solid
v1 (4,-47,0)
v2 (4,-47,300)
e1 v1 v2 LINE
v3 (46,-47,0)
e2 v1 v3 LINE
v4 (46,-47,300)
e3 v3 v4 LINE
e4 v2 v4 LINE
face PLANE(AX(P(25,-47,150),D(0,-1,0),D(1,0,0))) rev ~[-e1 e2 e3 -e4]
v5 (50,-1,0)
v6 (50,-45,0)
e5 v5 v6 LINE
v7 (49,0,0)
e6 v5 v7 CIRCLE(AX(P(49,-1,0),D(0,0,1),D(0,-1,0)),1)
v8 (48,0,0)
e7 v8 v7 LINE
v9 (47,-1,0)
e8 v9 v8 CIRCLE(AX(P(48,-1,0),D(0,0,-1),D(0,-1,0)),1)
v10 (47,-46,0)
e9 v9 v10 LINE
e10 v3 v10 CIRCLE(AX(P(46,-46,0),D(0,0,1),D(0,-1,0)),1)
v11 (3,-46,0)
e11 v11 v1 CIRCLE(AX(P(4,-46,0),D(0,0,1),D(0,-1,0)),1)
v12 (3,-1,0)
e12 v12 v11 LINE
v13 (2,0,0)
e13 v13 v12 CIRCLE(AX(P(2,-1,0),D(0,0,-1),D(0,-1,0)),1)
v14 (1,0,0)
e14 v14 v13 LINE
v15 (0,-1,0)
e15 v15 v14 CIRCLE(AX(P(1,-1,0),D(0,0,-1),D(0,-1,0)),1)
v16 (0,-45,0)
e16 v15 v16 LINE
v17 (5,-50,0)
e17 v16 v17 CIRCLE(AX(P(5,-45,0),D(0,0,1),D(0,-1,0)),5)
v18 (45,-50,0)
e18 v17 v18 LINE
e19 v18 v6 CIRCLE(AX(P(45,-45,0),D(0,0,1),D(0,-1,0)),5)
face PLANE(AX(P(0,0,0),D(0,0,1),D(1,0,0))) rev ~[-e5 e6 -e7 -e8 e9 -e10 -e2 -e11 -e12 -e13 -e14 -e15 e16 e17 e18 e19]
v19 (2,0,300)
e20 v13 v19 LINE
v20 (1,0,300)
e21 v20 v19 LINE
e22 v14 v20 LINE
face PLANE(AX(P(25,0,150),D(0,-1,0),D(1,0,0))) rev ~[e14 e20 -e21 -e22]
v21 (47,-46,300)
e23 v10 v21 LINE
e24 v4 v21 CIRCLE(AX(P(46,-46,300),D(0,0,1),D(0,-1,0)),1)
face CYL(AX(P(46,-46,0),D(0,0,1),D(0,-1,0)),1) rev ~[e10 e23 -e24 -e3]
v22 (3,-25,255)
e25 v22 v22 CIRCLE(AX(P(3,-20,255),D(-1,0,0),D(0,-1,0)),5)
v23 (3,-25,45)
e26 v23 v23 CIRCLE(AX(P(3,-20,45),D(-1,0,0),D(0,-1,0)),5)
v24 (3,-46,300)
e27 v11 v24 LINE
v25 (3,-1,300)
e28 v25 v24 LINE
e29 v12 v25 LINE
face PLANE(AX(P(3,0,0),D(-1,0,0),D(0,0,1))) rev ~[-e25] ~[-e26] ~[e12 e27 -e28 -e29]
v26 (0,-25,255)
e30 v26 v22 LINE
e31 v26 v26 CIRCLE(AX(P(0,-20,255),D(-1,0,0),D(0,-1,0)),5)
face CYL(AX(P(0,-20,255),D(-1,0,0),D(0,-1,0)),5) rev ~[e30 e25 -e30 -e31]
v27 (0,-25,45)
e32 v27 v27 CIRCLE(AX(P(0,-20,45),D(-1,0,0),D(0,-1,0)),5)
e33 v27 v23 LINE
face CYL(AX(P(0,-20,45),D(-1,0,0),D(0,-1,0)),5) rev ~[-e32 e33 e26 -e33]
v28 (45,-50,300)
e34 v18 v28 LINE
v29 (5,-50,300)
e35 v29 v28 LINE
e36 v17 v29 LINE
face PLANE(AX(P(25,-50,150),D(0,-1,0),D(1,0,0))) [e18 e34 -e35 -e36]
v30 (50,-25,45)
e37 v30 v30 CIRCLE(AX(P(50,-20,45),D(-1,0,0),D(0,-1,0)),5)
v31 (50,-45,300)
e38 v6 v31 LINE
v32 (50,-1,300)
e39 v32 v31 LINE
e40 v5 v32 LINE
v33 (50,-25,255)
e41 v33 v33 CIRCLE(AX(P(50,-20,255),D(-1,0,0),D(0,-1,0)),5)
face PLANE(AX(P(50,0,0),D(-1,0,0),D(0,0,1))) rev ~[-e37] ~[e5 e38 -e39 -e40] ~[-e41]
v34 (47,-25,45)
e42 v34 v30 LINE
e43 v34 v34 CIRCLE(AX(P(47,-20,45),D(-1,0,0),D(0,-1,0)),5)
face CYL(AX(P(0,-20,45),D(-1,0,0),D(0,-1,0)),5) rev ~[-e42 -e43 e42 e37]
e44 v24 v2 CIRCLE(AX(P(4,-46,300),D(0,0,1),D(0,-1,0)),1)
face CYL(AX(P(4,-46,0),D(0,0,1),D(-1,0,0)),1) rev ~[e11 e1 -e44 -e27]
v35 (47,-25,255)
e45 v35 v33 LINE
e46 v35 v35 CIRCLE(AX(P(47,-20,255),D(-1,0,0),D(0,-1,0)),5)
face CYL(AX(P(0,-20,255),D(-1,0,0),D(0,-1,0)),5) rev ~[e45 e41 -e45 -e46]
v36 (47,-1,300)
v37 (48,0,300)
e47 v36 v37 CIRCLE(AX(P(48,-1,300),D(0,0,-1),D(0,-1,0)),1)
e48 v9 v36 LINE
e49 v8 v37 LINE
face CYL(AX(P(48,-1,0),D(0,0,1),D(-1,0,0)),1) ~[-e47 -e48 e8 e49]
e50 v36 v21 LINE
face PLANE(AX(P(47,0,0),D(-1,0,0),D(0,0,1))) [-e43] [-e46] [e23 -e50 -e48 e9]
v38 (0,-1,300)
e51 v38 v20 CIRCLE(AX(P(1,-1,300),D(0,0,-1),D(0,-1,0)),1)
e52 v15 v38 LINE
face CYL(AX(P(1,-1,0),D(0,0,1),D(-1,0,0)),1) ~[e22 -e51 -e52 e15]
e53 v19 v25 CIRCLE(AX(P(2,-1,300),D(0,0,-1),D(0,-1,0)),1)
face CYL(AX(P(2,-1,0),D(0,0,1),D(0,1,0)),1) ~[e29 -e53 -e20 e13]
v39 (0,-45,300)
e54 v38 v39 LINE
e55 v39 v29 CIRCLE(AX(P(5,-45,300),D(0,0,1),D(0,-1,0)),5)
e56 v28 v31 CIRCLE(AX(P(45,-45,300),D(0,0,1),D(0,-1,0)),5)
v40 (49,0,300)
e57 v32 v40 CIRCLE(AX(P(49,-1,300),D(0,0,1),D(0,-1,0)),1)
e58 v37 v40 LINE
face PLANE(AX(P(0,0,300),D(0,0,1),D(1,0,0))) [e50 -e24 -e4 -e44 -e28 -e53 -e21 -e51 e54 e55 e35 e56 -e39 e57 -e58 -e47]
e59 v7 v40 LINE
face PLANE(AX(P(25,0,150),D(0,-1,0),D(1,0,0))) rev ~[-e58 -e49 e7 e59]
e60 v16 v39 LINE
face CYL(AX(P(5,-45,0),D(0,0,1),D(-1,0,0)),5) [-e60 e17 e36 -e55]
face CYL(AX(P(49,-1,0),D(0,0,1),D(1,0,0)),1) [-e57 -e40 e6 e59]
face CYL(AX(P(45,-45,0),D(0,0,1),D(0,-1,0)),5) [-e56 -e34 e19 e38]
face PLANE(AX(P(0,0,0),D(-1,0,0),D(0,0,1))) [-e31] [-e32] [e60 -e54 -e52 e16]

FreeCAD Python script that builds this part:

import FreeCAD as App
import Part
import Sketcher


def edges_at(feature, points):
    """Names of the edges that pass closest to the given points."""
    edges = feature.Shape.Edges
    near = lambda p: min(range(len(edges)), key=lambda i: edges[i].distToShape(Part.Vertex(*p))[0])
    return sorted({f"Edge{near(p) + 1}" for p in points})


def faces_at(feature, points):
    """Names of the faces that lie closest to the given points."""
    faces = feature.Shape.Faces
    near = lambda p: min(range(len(faces)), key=lambda i: faces[i].distToShape(Part.Vertex(*p))[0])
    return sorted({f"Face{near(p) + 1}" for p in points})


def add_polygon(sketch, points):
    """Adds a closed chain of lines whose ends are joined by coincident constraints."""
    first, n = sketch.GeometryCount, len(points)
    for a, b in zip(points, points[1:] + points[:1]):
        sketch.addGeometry(Part.LineSegment(App.Vector(*a, 0), App.Vector(*b, 0)), False)
    for i in range(n):
        sketch.addConstraint(Sketcher.Constraint("Coincident", first + i, 2, first + (i + 1) % n, 1))

doc = App.newDocument("Part")
body = doc.addObject("PartDesign::Body", "Body")

# Sketch on XZ plane
sketch1 = body.newObject("Sketcher::SketchObject", "Sketch")
sketch1.AttachmentSupport = (doc.getObject("XZ_Plane"), [""])
sketch1.MapMode = "FlatFace"
add_polygon(sketch1, [(0, 300), (0, 0), (50, 0), (50, 300)])  # lines 0-3
sketch1.addConstraint(Sketcher.Constraint("Vertical", 0))
sketch1.addConstraint(Sketcher.Constraint("Horizontal", 1))
sketch1.addConstraint(Sketcher.Constraint("Vertical", 2))
sketch1.addConstraint(Sketcher.Constraint("Horizontal", 3))
sketch1.addConstraint(Sketcher.Constraint("Coincident", 0, 2, -1, 1))
sketch1.addConstraint(Sketcher.Constraint("DistanceX", 1, 1, 1, 2, 50.0))
sketch1.addConstraint(Sketcher.Constraint("DistanceY", 0, 2, 0, 1, 300.0))
pad1 = body.newObject("PartDesign::Pad", "Pad")
pad1.Profile = sketch1
pad1.Length = 50
doc.recompute()

thickness = body.newObject("PartDesign::Thickness", "Thickness")
thickness.Base = (pad1, faces_at(pad1, [(25, -25, 0), (25, 0, 150), (25, -25, 300)]))
thickness.Value = 3
thickness.Reversed = True
thickness.Join = "Arc"
doc.recompute()

fillet = body.newObject("PartDesign::Fillet", "Fillet")
fillet.Base = (thickness, edges_at(thickness, [(50, -50, 150), (0, -50, 150)]))
fillet.Radius = 5
doc.recompute()

fillet2 = body.newObject("PartDesign::Fillet", "Fillet001")
fillet2.Base = (fillet, edges_at(fillet, [
    (47, 0, 150),
    (50, 0, 150),
    (3, 0, 150),
    (0, 0, 150),
    (3, -47, 150),
    (47, -47, 150),
]))
fillet2.Radius = 1

# Sketch on YZ plane
sketch2 = body.newObject("Sketcher::SketchObject", "Sketch001")
sketch2.AttachmentSupport = (doc.getObject("YZ_Plane"), [""])
sketch2.MapMode = "FlatFace"
sketch2.addGeometry(Part.Circle(App.Vector(-20, 255, 0), App.Vector(0, 0, 1), 5), False)
sketch2.addGeometry(Part.Circle(App.Vector(-20, 45, 0), App.Vector(0, 0, 1), 5), False)
sketch2.addConstraint(Sketcher.Constraint("Equal", 0, 1))
sketch2.addConstraint(Sketcher.Constraint("Vertical", 0, 3, 1, 3))
sketch2.addConstraint(Sketcher.Constraint("Diameter", 0, 10.0))
sketch2.addConstraint(Sketcher.Constraint("DistanceX", 0, 3, -1, 1, 20.0))
sketch2.addConstraint(Sketcher.Constraint("DistanceY", -1, 1, 0, 3, 255.0))
sketch2.addConstraint(Sketcher.Constraint("DistanceY", -1, 1, 1, 3, 45.0))
pocket1 = body.newObject("PartDesign::Pocket", "Pocket")
pocket1.Profile = sketch2
pocket1.Type = "ThroughAll"
pocket1.Reversed = True

doc.recompute()
